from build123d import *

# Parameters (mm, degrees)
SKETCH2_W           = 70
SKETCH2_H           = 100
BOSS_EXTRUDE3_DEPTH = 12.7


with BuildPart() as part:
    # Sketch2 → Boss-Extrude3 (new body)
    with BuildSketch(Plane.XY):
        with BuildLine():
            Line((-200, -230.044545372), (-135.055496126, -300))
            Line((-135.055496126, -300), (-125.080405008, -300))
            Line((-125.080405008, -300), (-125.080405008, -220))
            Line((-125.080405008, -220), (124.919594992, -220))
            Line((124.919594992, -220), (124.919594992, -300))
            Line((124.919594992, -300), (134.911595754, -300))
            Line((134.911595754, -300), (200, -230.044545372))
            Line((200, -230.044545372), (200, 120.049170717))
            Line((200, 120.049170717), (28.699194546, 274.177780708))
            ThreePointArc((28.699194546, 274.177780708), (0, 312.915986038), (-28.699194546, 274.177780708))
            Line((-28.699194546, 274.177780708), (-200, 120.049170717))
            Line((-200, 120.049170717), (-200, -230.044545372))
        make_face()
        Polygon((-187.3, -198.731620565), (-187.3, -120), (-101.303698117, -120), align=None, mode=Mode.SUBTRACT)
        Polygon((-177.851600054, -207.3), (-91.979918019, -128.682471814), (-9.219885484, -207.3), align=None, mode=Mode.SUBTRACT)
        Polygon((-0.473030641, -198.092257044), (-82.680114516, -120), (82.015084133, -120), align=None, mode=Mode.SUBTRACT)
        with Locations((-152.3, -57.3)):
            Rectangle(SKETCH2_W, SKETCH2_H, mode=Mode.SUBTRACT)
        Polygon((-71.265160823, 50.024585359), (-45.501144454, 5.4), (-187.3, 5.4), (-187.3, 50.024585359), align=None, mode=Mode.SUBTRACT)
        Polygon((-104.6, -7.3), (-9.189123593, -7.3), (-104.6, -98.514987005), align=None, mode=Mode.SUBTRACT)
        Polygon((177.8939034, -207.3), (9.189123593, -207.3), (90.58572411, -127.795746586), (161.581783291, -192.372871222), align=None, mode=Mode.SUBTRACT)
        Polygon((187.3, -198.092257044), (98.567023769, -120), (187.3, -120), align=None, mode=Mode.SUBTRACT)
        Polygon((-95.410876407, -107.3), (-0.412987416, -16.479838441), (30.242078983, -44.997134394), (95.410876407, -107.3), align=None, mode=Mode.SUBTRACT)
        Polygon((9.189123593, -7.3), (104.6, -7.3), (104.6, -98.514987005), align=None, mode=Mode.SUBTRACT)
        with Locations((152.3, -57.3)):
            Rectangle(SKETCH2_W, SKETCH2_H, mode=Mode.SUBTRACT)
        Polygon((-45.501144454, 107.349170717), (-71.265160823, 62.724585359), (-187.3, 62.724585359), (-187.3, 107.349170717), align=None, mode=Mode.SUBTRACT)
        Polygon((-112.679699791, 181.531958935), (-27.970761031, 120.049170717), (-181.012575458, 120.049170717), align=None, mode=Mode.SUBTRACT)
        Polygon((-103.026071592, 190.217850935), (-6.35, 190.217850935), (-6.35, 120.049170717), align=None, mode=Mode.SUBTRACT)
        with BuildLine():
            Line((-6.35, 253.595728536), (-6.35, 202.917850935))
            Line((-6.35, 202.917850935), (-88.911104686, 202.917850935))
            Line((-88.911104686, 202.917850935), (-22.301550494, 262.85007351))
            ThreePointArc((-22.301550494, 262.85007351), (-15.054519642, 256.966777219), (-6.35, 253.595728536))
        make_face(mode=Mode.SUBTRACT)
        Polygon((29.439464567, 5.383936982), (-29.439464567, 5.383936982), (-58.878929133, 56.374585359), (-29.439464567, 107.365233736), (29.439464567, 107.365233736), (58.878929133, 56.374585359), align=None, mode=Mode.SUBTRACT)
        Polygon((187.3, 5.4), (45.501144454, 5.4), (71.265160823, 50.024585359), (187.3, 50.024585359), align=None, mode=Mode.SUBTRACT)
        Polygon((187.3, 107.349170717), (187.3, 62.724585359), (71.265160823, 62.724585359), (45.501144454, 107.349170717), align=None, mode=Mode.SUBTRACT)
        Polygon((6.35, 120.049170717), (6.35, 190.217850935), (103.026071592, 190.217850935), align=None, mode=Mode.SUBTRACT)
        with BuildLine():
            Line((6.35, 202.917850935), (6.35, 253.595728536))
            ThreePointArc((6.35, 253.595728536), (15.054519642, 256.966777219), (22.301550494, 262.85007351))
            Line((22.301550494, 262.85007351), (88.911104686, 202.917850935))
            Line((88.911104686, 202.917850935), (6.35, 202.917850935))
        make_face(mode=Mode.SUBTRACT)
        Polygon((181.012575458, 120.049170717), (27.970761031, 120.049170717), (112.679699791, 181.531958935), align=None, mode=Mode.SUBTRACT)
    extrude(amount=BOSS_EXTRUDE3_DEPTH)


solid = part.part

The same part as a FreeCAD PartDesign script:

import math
import FreeCAD as App
import Part
import Sketcher
from FreeCAD import Vector
Q = App.Units.Quantity

doc = App.newDocument("Part")
body = doc.addObject("PartDesign::Body", "Body")

sketch1 = body.newObject("Sketcher::SketchObject", "Sketch")
sketch1.AttachmentSupport = (doc.getObject("XY_Plane"), [""])
sketch1.MapMode = "FlatFace"
sketch1.addGeometry([
    Part.LineSegment(Vector(-200, -230, 0), Vector(-135, -300, 0)),
    Part.LineSegment(Vector(-135, -300, 0), Vector(-125, -300, 0)),
    Part.LineSegment(Vector(-125, -300, 0), Vector(-125, -220, 0)),
    Part.LineSegment(Vector(-125, -220, 0), Vector(125, -220, 0)),
    Part.LineSegment(Vector(125, -220, 0), Vector(125, -300, 0)),
    Part.LineSegment(Vector(125, -300, 0), Vector(135, -300, 0)),
    Part.LineSegment(Vector(135, -300, 0), Vector(200, -230, 0)),
    Part.LineSegment(Vector(200, -230, 0), Vector(200, 120, 0)),
    Part.LineSegment(Vector(200, 120, 0), Vector(29, 274, 0)),
    Part.ArcOfCircle(Part.Circle(Vector(0, 283, 0), Vector(0, 0, 1), 30), math.radians(-17), math.radians(197)),
    Part.LineSegment(Vector(-29, 274, 0), Vector(-200, 120, 0)),
    Part.LineSegment(Vector(-200, 120, 0), Vector(-200, -230, 0)),
    Part.LineSegment(Vector(-101, -120, 0), Vector(-187, -199, 0)),
    Part.LineSegment(Vector(-187, -199, 0), Vector(-187, -120, 0)),
    Part.LineSegment(Vector(-187, -120, 0), Vector(-101, -120, 0)),
    Part.LineSegment(Vector(-9, -207, 0), Vector(-178, -207, 0)),
    Part.LineSegment(Vector(-178, -207, 0), Vector(-92, -129, 0)),
    Part.LineSegment(Vector(-92, -129, 0), Vector(-9, -207, 0)),
    Part.LineSegment(Vector(82, -120, 0), Vector(0, -198, 0)),
    Part.LineSegment(Vector(0, -198, 0), Vector(-83, -120, 0)),
    Part.LineSegment(Vector(-83, -120, 0), Vector(82, -120, 0)),
    Part.LineSegment(Vector(-117, -107, 0), Vector(-187, -107, 0)),
    Part.LineSegment(Vector(-187, -107, 0), Vector(-187, -7, 0)),
    Part.LineSegment(Vector(-187, -7, 0), Vector(-117, -7, 0)),
    Part.LineSegment(Vector(-117, -7, 0), Vector(-117, -107, 0)),
    Part.LineSegment(Vector(-187, 50, 0), Vector(-71, 50, 0)),
    Part.LineSegment(Vector(-71, 50, 0), Vector(-46, 5, 0)),
    Part.LineSegment(Vector(-46, 5, 0), Vector(-187, 5, 0)),
    Part.LineSegment(Vector(-187, 5, 0), Vector(-187, 50, 0)),
    Part.LineSegment(Vector(-105, -99, 0), Vector(-105, -7, 0)),
    Part.LineSegment(Vector(-105, -7, 0), Vector(-9, -7, 0)),
    Part.LineSegment(Vector(-9, -7, 0), Vector(-105, -99, 0)),
    Part.LineSegment(Vector(95, -107, 0), Vector(-95, -107, 0)),
    Part.LineSegment(Vector(-95, -107, 0), Vector(0, -16, 0)),
    Part.LineSegment(Vector(0, -16, 0), Vector(30, -45, 0)),
    Part.LineSegment(Vector(30, -45, 0), Vector(95, -107, 0)),
    Part.LineSegment(Vector(162, -192, 0), Vector(178, -207, 0)),
    Part.LineSegment(Vector(178, -207, 0), Vector(9, -207, 0)),
    Part.LineSegment(Vector(9, -207, 0), Vector(91, -128, 0)),
    Part.LineSegment(Vector(91, -128, 0), Vector(162, -192, 0)),
    Part.LineSegment(Vector(187, -120, 0), Vector(187, -198, 0)),
    Part.LineSegment(Vector(187, -198, 0), Vector(99, -120, 0)),
    Part.LineSegment(Vector(99, -120, 0), Vector(187, -120, 0)),
    Part.LineSegment(Vector(105, -99, 0), Vector(9, -7, 0)),
    Part.LineSegment(Vector(9, -7, 0), Vector(105, -7, 0)),
    Part.LineSegment(Vector(105, -7, 0), Vector(105, -99, 0)),
    Part.LineSegment(Vector(187, -107, 0), Vector(117, -107, 0)),
    Part.LineSegment(Vector(117, -107, 0), Vector(117, -7, 0)),
    Part.LineSegment(Vector(117, -7, 0), Vector(187, -7, 0)),
    Part.LineSegment(Vector(187, -7, 0), Vector(187, -107, 0)),
    Part.LineSegment(Vector(187, 50, 0), Vector(187, 5, 0)),
    Part.LineSegment(Vector(187, 5, 0), Vector(46, 5, 0)),
    Part.LineSegment(Vector(46, 5, 0), Vector(71, 50, 0)),
    Part.LineSegment(Vector(71, 50, 0), Vector(187, 50, 0)),
    Part.LineSegment(Vector(-187, 107, 0), Vector(-46, 107, 0)),
    Part.LineSegment(Vector(-46, 107, 0), Vector(-71, 63, 0)),
    Part.LineSegment(Vector(-71, 63, 0), Vector(-187, 63, 0)),
    Part.LineSegment(Vector(-187, 63, 0), Vector(-187, 107, 0)),
    Part.LineSegment(Vector(59, 56, 0), Vector(29, 5, 0)),
    Part.LineSegment(Vector(29, 5, 0), Vector(-29, 5, 0)),
    Part.LineSegment(Vector(-29, 5, 0), Vector(-59, 56, 0)),
    Part.LineSegment(Vector(-59, 56, 0), Vector(-29, 107, 0)),
    Part.LineSegment(Vector(-29, 107, 0), Vector(29, 107, 0)),
    Part.LineSegment(Vector(29, 107, 0), Vector(59, 56, 0)),
    Part.LineSegment(Vector(-181, 120, 0), Vector(-113, 182, 0)),
    Part.LineSegment(Vector(-113, 182, 0), Vector(-28, 120, 0)),
    Part.LineSegment(Vector(-28, 120, 0), Vector(-181, 120, 0)),
    Part.LineSegment(Vector(-6, 120, 0), Vector(-103, 190, 0)),
    Part.LineSegment(Vector(-103, 190, 0), Vector(-6, 190, 0)),
    Part.LineSegment(Vector(-6, 190, 0), Vector(-6, 120, 0)),
    Part.ArcOfCircle(Part.Circle(Vector(0, 283, 0), Vector(0, 0, 1), 30), math.radians(-138), math.radians(-102)),
    Part.LineSegment(Vector(-6, 254, 0), Vector(-6, 203, 0)),
    Part.LineSegment(Vector(-6, 203, 0), Vector(-89, 203, 0)),
    Part.LineSegment(Vector(-89, 203, 0), Vector(-22, 263, 0)),
    Part.LineSegment(Vector(46, 107, 0), Vector(187, 107, 0)),
    Part.LineSegment(Vector(187, 107, 0), Vector(187, 63, 0)),
    Part.LineSegment(Vector(187, 63, 0), Vector(71, 63, 0)),
    Part.LineSegment(Vector(71, 63, 0), Vector(46, 107, 0)),
    Part.LineSegment(Vector(103, 190, 0), Vector(6, 120, 0)),
    Part.LineSegment(Vector(6, 120, 0), Vector(6, 190, 0)),
    Part.LineSegment(Vector(6, 190, 0), Vector(103, 190, 0)),
    Part.LineSegment(Vector(89, 203, 0), Vector(6, 203, 0)),
    Part.LineSegment(Vector(6, 203, 0), Vector(6, 254, 0)),
    Part.ArcOfCircle(Part.Circle(Vector(0, 283, 0), Vector(0, 0, 1), 30), math.radians(-78), math.radians(-42)),
    Part.LineSegment(Vector(22, 263, 0), Vector(89, 203, 0)),
    Part.LineSegment(Vector(113, 182, 0), Vector(181, 120, 0)),
    Part.LineSegment(Vector(181, 120, 0), Vector(28, 120, 0)),
    Part.LineSegment(Vector(28, 120, 0), Vector(113, 182, 0)),
], False)
sketch1.addConstraint([
    Sketcher.Constraint("Coincident", 0, 2, 1, 1),
    Sketcher.Constraint("Coincident", 1, 2, 2, 1),
    Sketcher.Constraint("Coincident", 2, 2, 3, 1),
    Sketcher.Constraint("Coincident", 3, 2, 4, 1),
    Sketcher.Constraint("Coincident", 4, 2, 5, 1),
    Sketcher.Constraint("Coincident", 5, 2, 6, 1),
    Sketcher.Constraint("Coincident", 6, 2, 7, 1),
    Sketcher.Constraint("Coincident", 7, 2, 8, 1),
    Sketcher.Constraint("Coincident", 8, 2, 9, 1),
    Sketcher.Constraint("Coincident", 9, 2, 10, 1),
    Sketcher.Constraint("Coincident", 10, 2, 11, 1),
    Sketcher.Constraint("Coincident", 11, 2, 0, 1),
    Sketcher.Constraint("Coincident", 12, 2, 13, 1),
    Sketcher.Constraint("Coincident", 13, 2, 14, 1),
    Sketcher.Constraint("Coincident", 14, 2, 12, 1),
    Sketcher.Constraint("Coincident", 15, 2, 16, 1),
    Sketcher.Constraint("Coincident", 16, 2, 17, 1),
    Sketcher.Constraint("Coincident", 17, 2, 15, 1),
    Sketcher.Constraint("Coincident", 18, 2, 19, 1),
    Sketcher.Constraint("Coincident", 19, 2, 20, 1),
    Sketcher.Constraint("Coincident", 20, 2, 18, 1),
    Sketcher.Constraint("Coincident", 21, 2, 22, 1),
    Sketcher.Constraint("Coincident", 22, 2, 23, 1),
    Sketcher.Constraint("Coincident", 23, 2, 24, 1),
    Sketcher.Constraint("Coincident", 24, 2, 21, 1),
    Sketcher.Constraint("Coincident", 25, 2, 26, 1),
    Sketcher.Constraint("Coincident", 26, 2, 27, 1),
    Sketcher.Constraint("Coincident", 27, 2, 28, 1),
    Sketcher.Constraint("Coincident", 28, 2, 25, 1),
    Sketcher.Constraint("Coincident", 29, 2, 30, 1),
    Sketcher.Constraint("Coincident", 30, 2, 31, 1),
    Sketcher.Constraint("Coincident", 31, 2, 29, 1),
    Sketcher.Constraint("Coincident", 32, 2, 33, 1),
    Sketcher.Constraint("Coincident", 33, 2, 34, 1),
    Sketcher.Constraint("Coincident", 34, 2, 35, 1),
    Sketcher.Constraint("Coincident", 35, 2, 32, 1),
    Sketcher.Constraint("Coincident", 36, 2, 37, 1),
    Sketcher.Constraint("Coincident", 37, 2, 38, 1),
    Sketcher.Constraint("Coincident", 38, 2, 39, 1),
    Sketcher.Constraint("Coincident", 39, 2, 36, 1),
    Sketcher.Constraint("Coincident", 40, 2, 41, 1),
    Sketcher.Constraint("Coincident", 41, 2, 42, 1),
    Sketcher.Constraint("Coincident", 42, 2, 40, 1),
    Sketcher.Constraint("Coincident", 43, 2, 44, 1),
    Sketcher.Constraint("Coincident", 44, 2, 45, 1),
    Sketcher.Constraint("Coincident", 45, 2, 43, 1),
    Sketcher.Constraint("Coincident", 46, 2, 47, 1),
    Sketcher.Constraint("Coincident", 47, 2, 48, 1),
    Sketcher.Constraint("Coincident", 48, 2, 49, 1),
    Sketcher.Constraint("Coincident", 49, 2, 46, 1),
    Sketcher.Constraint("Coincident", 50, 2, 51, 1),
    Sketcher.Constraint("Coincident", 51, 2, 52, 1),
    Sketcher.Constraint("Coincident", 52, 2, 53, 1),
    Sketcher.Constraint("Coincident", 53, 2, 50, 1),
    Sketcher.Constraint("Coincident", 54, 2, 55, 1),
    Sketcher.Constraint("Coincident", 55, 2, 56, 1),
    Sketcher.Constraint("Coincident", 56, 2, 57, 1),
    Sketcher.Constraint("Coincident", 57, 2, 54, 1),
    Sketcher.Constraint("Coincident", 58, 2, 59, 1),
    Sketcher.Constraint("Coincident", 59, 2, 60, 1),
    Sketcher.Constraint("Coincident", 60, 2, 61, 1),
    Sketcher.Constraint("Coincident", 61, 2, 62, 1),
    Sketcher.Constraint("Coincident", 62, 2, 63, 1),
    Sketcher.Constraint("Coincident", 63, 2, 58, 1),
    Sketcher.Constraint("Coincident", 64, 2, 65, 1),
    Sketcher.Constraint("Coincident", 65, 2, 66, 1),
    Sketcher.Constraint("Coincident", 66, 2, 64, 1),
    Sketcher.Constraint("Coincident", 67, 2, 68, 1),
    Sketcher.Constraint("Coincident", 68, 2, 69, 1),
    Sketcher.Constraint("Coincident", 69, 2, 67, 1),
    Sketcher.Constraint("Coincident", 70, 2, 71, 1),
    Sketcher.Constraint("Coincident", 71, 2, 72, 1),
    Sketcher.Constraint("Coincident", 72, 2, 73, 1),
    Sketcher.Constraint("Coincident", 73, 2, 70, 1),
    Sketcher.Constraint("Coincident", 74, 2, 75, 1),
    Sketcher.Constraint("Coincident", 75, 2, 76, 1),
    Sketcher.Constraint("Coincident", 76, 2, 77, 1),
    Sketcher.Constraint("Coincident", 77, 2, 74, 1),
    Sketcher.Constraint("Coincident", 78, 2, 79, 1),
    Sketcher.Constraint("Coincident", 79, 2, 80, 1),
    Sketcher.Constraint("Coincident", 80, 2, 78, 1),
    Sketcher.Constraint("Coincident", 81, 2, 82, 1),
    Sketcher.Constraint("Coincident", 82, 2, 83, 1),
    Sketcher.Constraint("Coincident", 83, 2, 84, 1),
    Sketcher.Constraint("Coincident", 84, 2, 81, 1),
    Sketcher.Constraint("Coincident", 85, 2, 86, 1),
    Sketcher.Constraint("Coincident", 86, 2, 87, 1),
    Sketcher.Constraint("Coincident", 87, 2, 85, 1),
    Sketcher.Constraint("Horizontal", 1),
    Sketcher.Constraint("Vertical", 2),
    Sketcher.Constraint("Horizontal", 3),
    Sketcher.Constraint("Vertical", 4),
    Sketcher.Constraint("Horizontal", 5),
    Sketcher.Constraint("Vertical", 7),
    Sketcher.Constraint("Vertical", 11),
    Sketcher.Constraint("Vertical", 13),
    Sketcher.Constraint("Horizontal", 14),
    Sketcher.Constraint("Horizontal", 15),
    Sketcher.Constraint("Horizontal", 20),
    Sketcher.Constraint("Horizontal", 21),
    Sketcher.Constraint("Vertical", 22),
    Sketcher.Constraint("Horizontal", 23),
    Sketcher.Constraint("Vertical", 24),
    Sketcher.Constraint("Horizontal", 25),
    Sketcher.Constraint("Horizontal", 27),
    Sketcher.Constraint("Vertical", 28),
    Sketcher.Constraint("Vertical", 29),
    Sketcher.Constraint("Horizontal", 30),
    Sketcher.Constraint("Horizontal", 32),
    Sketcher.Constraint("Horizontal", 37),
    Sketcher.Constraint("Vertical", 40),
    Sketcher.Constraint("Horizontal", 42),
    Sketcher.Constraint("Horizontal", 44),
    Sketcher.Constraint("Vertical", 45),
    Sketcher.Constraint("Horizontal", 46),
    Sketcher.Constraint("Vertical", 47),
    Sketcher.Constraint("Horizontal", 48),
    Sketcher.Constraint("Vertical", 49),
    Sketcher.Constraint("Vertical", 50),
    Sketcher.Constraint("Horizontal", 51),
    Sketcher.Constraint("Horizontal", 53),
    Sketcher.Constraint("Horizontal", 54),
    Sketcher.Constraint("Horizontal", 56),
    Sketcher.Constraint("Vertical", 57),
    Sketcher.Constraint("Horizontal", 59),
    Sketcher.Constraint("Horizontal", 62),
    Sketcher.Constraint("Horizontal", 66),
    Sketcher.Constraint("Horizontal", 68),
    Sketcher.Constraint("Vertical", 69),
    Sketcher.Constraint("Vertical", 71),
    Sketcher.Constraint("Horizontal", 72),
    Sketcher.Constraint("Horizontal", 74),
    Sketcher.Constraint("Vertical", 75),
    Sketcher.Constraint("Horizontal", 76),
    Sketcher.Constraint("Vertical", 79),
    Sketcher.Constraint("Horizontal", 80),
    Sketcher.Constraint("Horizontal", 81),
    Sketcher.Constraint("Vertical", 82),
    Sketcher.Constraint("Horizontal", 86),
    Sketcher.Constraint("Coincident", 70, 3, 9, 3),
    Sketcher.Constraint("Coincident", 83, 3, 9, 3),
    Sketcher.Constraint("Equal", 9, 70),
    Sketcher.Constraint("Equal", 70, 83),
    Sketcher.Constraint("Symmetric", 8, 2, 9, 2, -2),
    Sketcher.Constraint("Symmetric", 7, 2, 10, 2, -2),
    Sketcher.Constraint("Symmetric", 13, 2, 42, 2, -2),
    Sketcher.Constraint("Symmetric", 30, 2, 43, 2, -2),
    Sketcher.Constraint("Symmetric", 31, 2, 45, 2, -2),
    Sketcher.Constraint("Symmetric", 24, 2, 46, 2, -2),
    Sketcher.Constraint("Symmetric", 22, 2, 48, 2, -2),
    Sketcher.Constraint("Symmetric", 27, 2, 50, 2, -2),
    Sketcher.Constraint("Symmetric", 25, 2, 52, 2, -2),
    Sketcher.Constraint("Symmetric", 60, 2, 63, 2, -2),
    Sketcher.Constraint("Symmetric", 57, 2, 74, 2, -2),
    Sketcher.Constraint("Symmetric", 55, 2, 76, 2, -2),
    Sketcher.Constraint("Symmetric", 69, 2, 78, 2, -2),
    Sketcher.Constraint("Symmetric", 67, 2, 80, 2, -2),
    Sketcher.Constraint("Symmetric", 71, 2, 81, 2, -2),
    Sketcher.Constraint("Symmetric", 66, 2, 85, 2, -2),
    Sketcher.Constraint("Symmetric", 64, 2, 87, 2, -2),
    Sketcher.Constraint("Parallel", 12, 16),
    Sketcher.Constraint("Parallel", 17, 19),
    Sketcher.Constraint("Parallel", 31, 33),
    Sketcher.Constraint("Parallel", 35, 43),
    Sketcher.Constraint("Parallel", 52, 55),
    Sketcher.Constraint("Parallel", 55, 58),
    Sketcher.Constraint("Parallel", 26, 60),
    Sketcher.Constraint("Parallel", 58, 61),
    Sketcher.Constraint("Parallel", 60, 63),
    Sketcher.Constraint("Parallel", 10, 64),
    Sketcher.Constraint("Parallel", 65, 67),
    Sketcher.Constraint("Parallel", 64, 73),
    Sketcher.Constraint("Parallel", 63, 77),
    Sketcher.Constraint("Parallel", 8, 84),
    Sketcher.Constraint("Parallel", 78, 87),
    Sketcher.Constraint("Horizontal", 1, 2, 4, 2),
    Sketcher.Constraint("Horizontal", 6, 2, 11, 2),
    Sketcher.Constraint("Horizontal", 14, 2, 19, 2),
    Sketcher.Constraint("Horizontal", 23, 2, 29, 2),
    Sketcher.Constraint("Horizontal", 24, 2, 32, 2),
    Sketcher.Constraint("Horizontal", 17, 2, 36, 2),
    Sketcher.Constraint("Horizontal", 18, 2, 40, 2),
    Sketcher.Constraint("Horizontal", 10, 2, 65, 2),
    Sketcher.Constraint("Horizontal", 66, 2, 69, 2),
    Sketcher.Constraint("Horizontal", 73, 2, 83, 2),
    Sketcher.Constraint("Vertical", 13, 2, 21, 2),
    Sketcher.Constraint("Vertical", 22, 2, 27, 2),
    Sketcher.Constraint("Vertical", 37, 2, 43, 2),
    Sketcher.Constraint("Vertical", 26, 2, 54, 2),
    Sketcher.Constraint("Vertical", 25, 2, 55, 2),
    Sketcher.Constraint("Vertical", 28, 2, 56, 2),
    Sketcher.Constraint("Vertical", 59, 2, 61, 2),
    Sketcher.Constraint("Vertical", 58, 2, 62, 2),
    Sketcher.Constraint("Vertical", 69, 2, 70, 2),
    Sketcher.Constraint("Radius", 9, Q("30 mm")),
    Sketcher.Constraint("DistanceX", 3, 1, 3, 2, Q("250 mm")),
    Sketcher.Constraint("DistanceX", 21, 2, 21, 1, Q("70 mm")),
    Sketcher.Constraint("DistanceY", 2, 1, 2, 2, Q("80 mm")),
    Sketcher.Constraint("DistanceY", 22, 1, 22, 2, Q("100 mm")),
    Sketcher.Constraint("Angle", 26, Q("-60 deg")),
    Sketcher.Constraint("DistanceY", 0, 2, -1, 1, Q("300 mm")),
    Sketcher.Constraint("DistanceX", -1, 1, 6, 2, Q("200 mm")),
    Sketcher.Constraint("DistanceY", 13, 2, -1, 1, Q("120 mm")),
    Sketcher.Constraint("DistanceX", 12, 2, -1, 1, Q("187.3 mm")),
    Sketcher.Constraint("DistanceY", 15, 2, -1, 1, Q("207.3 mm")),
    Sketcher.Constraint("DistanceY", 21, 2, -1, 1, Q("107.3 mm")),
    Sketcher.Constraint("DistanceY", -1, 1, 26, 2, Q("5.4 mm")),
    Sketcher.Constraint("DistanceX", 29, 2, -1, 1, Q("104.6 mm")),
    Sketcher.Constraint("DistanceX", 5, 1, 5, 2, Q("9.992001 mm")),
    Sketcher.Constraint("DistanceX", 68, 2, -1, 1, Q("6.35 mm")),
    Sketcher.Constraint("DistanceX", 14, 1, 14, 2, Q("85.996302 mm")),
    Sketcher.Constraint("DistanceX", 20, 1, 20, 2, Q("164.695199 mm")),
    Sketcher.Constraint("DistanceX", 1, 1, 1, 2, Q("9.975091 mm")),
    Sketcher.Constraint("DistanceX", 25, 1, 25, 2, Q("116.034839 mm")),
    Sketcher.Constraint("DistanceX", 37, 2, 37, 1, Q("168.70478 mm")),
    Sketcher.Constraint("DistanceX", 59, 2, 59, 1, Q("58.878929 mm")),
    Sketcher.Constraint("DistanceX", 68, 1, 68, 2, Q("96.676072 mm")),
    Sketcher.Constraint("DistanceY", 13, 1, 13, 2, Q("78.731621 mm")),
    Sketcher.Constraint("DistanceY", 69, 2, 69, 1, Q("70.16868 mm")),
    Sketcher.Constraint("DistanceX", 15, 2, -1, 1, Q("177.8516 mm")),
    Sketcher.Constraint("DistanceX", 64, 2, -1, 1, Q("112.6797 mm")),
    Sketcher.Constraint("Distance", 0, Q("95.454461 mm")),
    Sketcher.Constraint("Distance", 16, Q("116.424488 mm")),
    Sketcher.Constraint("Distance", 19, Q("113.386089 mm")),
    Sketcher.Constraint("Distance", 41, Q("118.202968 mm")),
    Sketcher.Constraint("Distance", 58, Q("58.878929 mm")),
    Sketcher.Constraint("Distance", 65, Q("104.669659 mm")),
    Sketcher.Constraint("DistanceX", 15, 2, 15, 1, Q("168.631715 mm")),
    Sketcher.Constraint("DistanceX", 27, 2, 27, 1, Q("141.798856 mm")),
    Sketcher.Constraint("DistanceX", 30, 1, 30, 2, Q("95.410876 mm")),
    Sketcher.Constraint("DistanceX", 32, 2, 32, 1, Q("190.821753 mm")),
    Sketcher.Constraint("DistanceX", 66, 2, 66, 1, Q("153.041814 mm")),
    Sketcher.Constraint("DistanceX", 72, 2, 72, 1, Q("82.561105 mm")),
    Sketcher.Constraint("DistanceY", 7, 1, 7, 2, Q("350.093716 mm")),
    Sketcher.Constraint("DistanceY", 29, 1, 29, 2, Q("91.214987 mm")),
    Sketcher.Constraint("DistanceY", 71, 2, 71, 1, Q("50.677878 mm")),
    Sketcher.Constraint("DistanceY", -1, 1, 7, 2, Q("120.049171 mm")),
    Sketcher.Constraint("DistanceY", -1, 1, 8, 2, Q("274.177781 mm")),
    Sketcher.Constraint("DistanceX", 18, 2, -1, 1, Q("0.473031 mm")),
    Sketcher.Constraint("DistanceY", 33, 2, -1, 1, Q("16.479838 mm")),
    Sketcher.Constraint("DistanceX", -1, 1, 34, 2, Q("30.242079 mm")),
    Sketcher.Constraint("DistanceY", 39, 2, -1, 1, Q("192.372871 mm")),
    Sketcher.Constraint("DistanceY", -1, 1, 54, 2, Q("107.349171 mm")),
    Sketcher.Constraint("Distance", 34, Q("41.868476 mm")),
    Sketcher.Constraint("Distance", 36, Q("22.111184 mm")),
    Sketcher.Constraint("Distance", 38, Q("113.781953 mm")),
    Sketcher.Constraint("Distance", 39, Q("95.972108 mm")),
    Sketcher.Constraint("DistanceY", -1, 1, 58, 2, Q("5.383937 mm")),
])
pad1 = body.newObject("PartDesign::Pad", "Pad")
pad1.Profile = sketch1
pad1.Length = 12.7

doc.recompute()
